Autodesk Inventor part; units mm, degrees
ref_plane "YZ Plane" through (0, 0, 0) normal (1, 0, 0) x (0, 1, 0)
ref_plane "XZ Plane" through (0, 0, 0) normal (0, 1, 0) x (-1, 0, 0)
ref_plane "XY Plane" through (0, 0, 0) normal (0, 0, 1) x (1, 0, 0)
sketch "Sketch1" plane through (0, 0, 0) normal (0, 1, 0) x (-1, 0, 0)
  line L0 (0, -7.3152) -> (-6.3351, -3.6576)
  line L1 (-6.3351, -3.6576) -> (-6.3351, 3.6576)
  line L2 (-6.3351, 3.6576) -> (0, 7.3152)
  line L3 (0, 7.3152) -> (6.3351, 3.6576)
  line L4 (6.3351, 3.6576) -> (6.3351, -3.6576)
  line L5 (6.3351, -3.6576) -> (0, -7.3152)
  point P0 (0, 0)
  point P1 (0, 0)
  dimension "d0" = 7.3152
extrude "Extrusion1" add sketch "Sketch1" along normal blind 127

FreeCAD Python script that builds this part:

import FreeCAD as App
import Part
import Sketcher
Q = App.Units.Quantity

doc = App.newDocument("Part")
body = doc.addObject("PartDesign::Body", "Body")

# Sketch on XZ plane
sketch1 = doc.addObject("Sketcher::SketchObject", "Sketch")
body.addObject(sketch1)
sketch1.AttachmentSupport = (doc.XZ_Plane, [""])
sketch1.MapMode = "FlatFace"
sketch1.addGeometry([
    Part.LineSegment(App.Vector(6, -4, 0), App.Vector(0, -7, 0)),  # 0
    Part.LineSegment(App.Vector(0, -7, 0), App.Vector(-6, -4, 0)),  # 1
    Part.LineSegment(App.Vector(-6, -4, 0), App.Vector(-6, 4, 0)),  # 2
    Part.LineSegment(App.Vector(-6, 4, 0), App.Vector(0, 7, 0)),  # 3
    Part.LineSegment(App.Vector(0, 7, 0), App.Vector(6, 4, 0)),  # 4
    Part.LineSegment(App.Vector(6, 4, 0), App.Vector(6, -4, 0)),  # 5
], False)
sketch1.addConstraint([
    Sketcher.Constraint("Coincident", 0, 2, 1, 1),
    Sketcher.Constraint("Coincident", 1, 2, 2, 1),
    Sketcher.Constraint("Coincident", 2, 2, 3, 1),
    Sketcher.Constraint("Coincident", 3, 2, 4, 1),
    Sketcher.Constraint("Coincident", 4, 2, 5, 1),
    Sketcher.Constraint("Coincident", 5, 2, 0, 1),
    Sketcher.Constraint("Vertical", 2),
    Sketcher.Constraint("Vertical", 5),
    Sketcher.Constraint("Symmetric", 0, 2, 3, 2, -1, 1),
    Sketcher.Constraint("Symmetric", 1, 2, 4, 2, -1, 1),
    Sketcher.Constraint("PointOnObject", 0, 2, -2),
    Sketcher.Constraint("Parallel", 0, 3),
    Sketcher.Constraint("Horizontal", 2, 2, 4, 2),
    Sketcher.Constraint("DistanceY", 2, 1, 2, 2, Q("0.288 in")),
    Sketcher.Constraint("Distance", 0, Q("0.288 in")),
    Sketcher.Constraint("DistanceY", 0, 2, -1, 1, Q("0.288 in")),
])
pad1 = doc.addObject("PartDesign::Pad", "Pad")
body.addObject(pad1)
pad1.Profile = sketch1
pad1.Length = Q("5 in")
pad1.Reversed = True

doc.recompute()
